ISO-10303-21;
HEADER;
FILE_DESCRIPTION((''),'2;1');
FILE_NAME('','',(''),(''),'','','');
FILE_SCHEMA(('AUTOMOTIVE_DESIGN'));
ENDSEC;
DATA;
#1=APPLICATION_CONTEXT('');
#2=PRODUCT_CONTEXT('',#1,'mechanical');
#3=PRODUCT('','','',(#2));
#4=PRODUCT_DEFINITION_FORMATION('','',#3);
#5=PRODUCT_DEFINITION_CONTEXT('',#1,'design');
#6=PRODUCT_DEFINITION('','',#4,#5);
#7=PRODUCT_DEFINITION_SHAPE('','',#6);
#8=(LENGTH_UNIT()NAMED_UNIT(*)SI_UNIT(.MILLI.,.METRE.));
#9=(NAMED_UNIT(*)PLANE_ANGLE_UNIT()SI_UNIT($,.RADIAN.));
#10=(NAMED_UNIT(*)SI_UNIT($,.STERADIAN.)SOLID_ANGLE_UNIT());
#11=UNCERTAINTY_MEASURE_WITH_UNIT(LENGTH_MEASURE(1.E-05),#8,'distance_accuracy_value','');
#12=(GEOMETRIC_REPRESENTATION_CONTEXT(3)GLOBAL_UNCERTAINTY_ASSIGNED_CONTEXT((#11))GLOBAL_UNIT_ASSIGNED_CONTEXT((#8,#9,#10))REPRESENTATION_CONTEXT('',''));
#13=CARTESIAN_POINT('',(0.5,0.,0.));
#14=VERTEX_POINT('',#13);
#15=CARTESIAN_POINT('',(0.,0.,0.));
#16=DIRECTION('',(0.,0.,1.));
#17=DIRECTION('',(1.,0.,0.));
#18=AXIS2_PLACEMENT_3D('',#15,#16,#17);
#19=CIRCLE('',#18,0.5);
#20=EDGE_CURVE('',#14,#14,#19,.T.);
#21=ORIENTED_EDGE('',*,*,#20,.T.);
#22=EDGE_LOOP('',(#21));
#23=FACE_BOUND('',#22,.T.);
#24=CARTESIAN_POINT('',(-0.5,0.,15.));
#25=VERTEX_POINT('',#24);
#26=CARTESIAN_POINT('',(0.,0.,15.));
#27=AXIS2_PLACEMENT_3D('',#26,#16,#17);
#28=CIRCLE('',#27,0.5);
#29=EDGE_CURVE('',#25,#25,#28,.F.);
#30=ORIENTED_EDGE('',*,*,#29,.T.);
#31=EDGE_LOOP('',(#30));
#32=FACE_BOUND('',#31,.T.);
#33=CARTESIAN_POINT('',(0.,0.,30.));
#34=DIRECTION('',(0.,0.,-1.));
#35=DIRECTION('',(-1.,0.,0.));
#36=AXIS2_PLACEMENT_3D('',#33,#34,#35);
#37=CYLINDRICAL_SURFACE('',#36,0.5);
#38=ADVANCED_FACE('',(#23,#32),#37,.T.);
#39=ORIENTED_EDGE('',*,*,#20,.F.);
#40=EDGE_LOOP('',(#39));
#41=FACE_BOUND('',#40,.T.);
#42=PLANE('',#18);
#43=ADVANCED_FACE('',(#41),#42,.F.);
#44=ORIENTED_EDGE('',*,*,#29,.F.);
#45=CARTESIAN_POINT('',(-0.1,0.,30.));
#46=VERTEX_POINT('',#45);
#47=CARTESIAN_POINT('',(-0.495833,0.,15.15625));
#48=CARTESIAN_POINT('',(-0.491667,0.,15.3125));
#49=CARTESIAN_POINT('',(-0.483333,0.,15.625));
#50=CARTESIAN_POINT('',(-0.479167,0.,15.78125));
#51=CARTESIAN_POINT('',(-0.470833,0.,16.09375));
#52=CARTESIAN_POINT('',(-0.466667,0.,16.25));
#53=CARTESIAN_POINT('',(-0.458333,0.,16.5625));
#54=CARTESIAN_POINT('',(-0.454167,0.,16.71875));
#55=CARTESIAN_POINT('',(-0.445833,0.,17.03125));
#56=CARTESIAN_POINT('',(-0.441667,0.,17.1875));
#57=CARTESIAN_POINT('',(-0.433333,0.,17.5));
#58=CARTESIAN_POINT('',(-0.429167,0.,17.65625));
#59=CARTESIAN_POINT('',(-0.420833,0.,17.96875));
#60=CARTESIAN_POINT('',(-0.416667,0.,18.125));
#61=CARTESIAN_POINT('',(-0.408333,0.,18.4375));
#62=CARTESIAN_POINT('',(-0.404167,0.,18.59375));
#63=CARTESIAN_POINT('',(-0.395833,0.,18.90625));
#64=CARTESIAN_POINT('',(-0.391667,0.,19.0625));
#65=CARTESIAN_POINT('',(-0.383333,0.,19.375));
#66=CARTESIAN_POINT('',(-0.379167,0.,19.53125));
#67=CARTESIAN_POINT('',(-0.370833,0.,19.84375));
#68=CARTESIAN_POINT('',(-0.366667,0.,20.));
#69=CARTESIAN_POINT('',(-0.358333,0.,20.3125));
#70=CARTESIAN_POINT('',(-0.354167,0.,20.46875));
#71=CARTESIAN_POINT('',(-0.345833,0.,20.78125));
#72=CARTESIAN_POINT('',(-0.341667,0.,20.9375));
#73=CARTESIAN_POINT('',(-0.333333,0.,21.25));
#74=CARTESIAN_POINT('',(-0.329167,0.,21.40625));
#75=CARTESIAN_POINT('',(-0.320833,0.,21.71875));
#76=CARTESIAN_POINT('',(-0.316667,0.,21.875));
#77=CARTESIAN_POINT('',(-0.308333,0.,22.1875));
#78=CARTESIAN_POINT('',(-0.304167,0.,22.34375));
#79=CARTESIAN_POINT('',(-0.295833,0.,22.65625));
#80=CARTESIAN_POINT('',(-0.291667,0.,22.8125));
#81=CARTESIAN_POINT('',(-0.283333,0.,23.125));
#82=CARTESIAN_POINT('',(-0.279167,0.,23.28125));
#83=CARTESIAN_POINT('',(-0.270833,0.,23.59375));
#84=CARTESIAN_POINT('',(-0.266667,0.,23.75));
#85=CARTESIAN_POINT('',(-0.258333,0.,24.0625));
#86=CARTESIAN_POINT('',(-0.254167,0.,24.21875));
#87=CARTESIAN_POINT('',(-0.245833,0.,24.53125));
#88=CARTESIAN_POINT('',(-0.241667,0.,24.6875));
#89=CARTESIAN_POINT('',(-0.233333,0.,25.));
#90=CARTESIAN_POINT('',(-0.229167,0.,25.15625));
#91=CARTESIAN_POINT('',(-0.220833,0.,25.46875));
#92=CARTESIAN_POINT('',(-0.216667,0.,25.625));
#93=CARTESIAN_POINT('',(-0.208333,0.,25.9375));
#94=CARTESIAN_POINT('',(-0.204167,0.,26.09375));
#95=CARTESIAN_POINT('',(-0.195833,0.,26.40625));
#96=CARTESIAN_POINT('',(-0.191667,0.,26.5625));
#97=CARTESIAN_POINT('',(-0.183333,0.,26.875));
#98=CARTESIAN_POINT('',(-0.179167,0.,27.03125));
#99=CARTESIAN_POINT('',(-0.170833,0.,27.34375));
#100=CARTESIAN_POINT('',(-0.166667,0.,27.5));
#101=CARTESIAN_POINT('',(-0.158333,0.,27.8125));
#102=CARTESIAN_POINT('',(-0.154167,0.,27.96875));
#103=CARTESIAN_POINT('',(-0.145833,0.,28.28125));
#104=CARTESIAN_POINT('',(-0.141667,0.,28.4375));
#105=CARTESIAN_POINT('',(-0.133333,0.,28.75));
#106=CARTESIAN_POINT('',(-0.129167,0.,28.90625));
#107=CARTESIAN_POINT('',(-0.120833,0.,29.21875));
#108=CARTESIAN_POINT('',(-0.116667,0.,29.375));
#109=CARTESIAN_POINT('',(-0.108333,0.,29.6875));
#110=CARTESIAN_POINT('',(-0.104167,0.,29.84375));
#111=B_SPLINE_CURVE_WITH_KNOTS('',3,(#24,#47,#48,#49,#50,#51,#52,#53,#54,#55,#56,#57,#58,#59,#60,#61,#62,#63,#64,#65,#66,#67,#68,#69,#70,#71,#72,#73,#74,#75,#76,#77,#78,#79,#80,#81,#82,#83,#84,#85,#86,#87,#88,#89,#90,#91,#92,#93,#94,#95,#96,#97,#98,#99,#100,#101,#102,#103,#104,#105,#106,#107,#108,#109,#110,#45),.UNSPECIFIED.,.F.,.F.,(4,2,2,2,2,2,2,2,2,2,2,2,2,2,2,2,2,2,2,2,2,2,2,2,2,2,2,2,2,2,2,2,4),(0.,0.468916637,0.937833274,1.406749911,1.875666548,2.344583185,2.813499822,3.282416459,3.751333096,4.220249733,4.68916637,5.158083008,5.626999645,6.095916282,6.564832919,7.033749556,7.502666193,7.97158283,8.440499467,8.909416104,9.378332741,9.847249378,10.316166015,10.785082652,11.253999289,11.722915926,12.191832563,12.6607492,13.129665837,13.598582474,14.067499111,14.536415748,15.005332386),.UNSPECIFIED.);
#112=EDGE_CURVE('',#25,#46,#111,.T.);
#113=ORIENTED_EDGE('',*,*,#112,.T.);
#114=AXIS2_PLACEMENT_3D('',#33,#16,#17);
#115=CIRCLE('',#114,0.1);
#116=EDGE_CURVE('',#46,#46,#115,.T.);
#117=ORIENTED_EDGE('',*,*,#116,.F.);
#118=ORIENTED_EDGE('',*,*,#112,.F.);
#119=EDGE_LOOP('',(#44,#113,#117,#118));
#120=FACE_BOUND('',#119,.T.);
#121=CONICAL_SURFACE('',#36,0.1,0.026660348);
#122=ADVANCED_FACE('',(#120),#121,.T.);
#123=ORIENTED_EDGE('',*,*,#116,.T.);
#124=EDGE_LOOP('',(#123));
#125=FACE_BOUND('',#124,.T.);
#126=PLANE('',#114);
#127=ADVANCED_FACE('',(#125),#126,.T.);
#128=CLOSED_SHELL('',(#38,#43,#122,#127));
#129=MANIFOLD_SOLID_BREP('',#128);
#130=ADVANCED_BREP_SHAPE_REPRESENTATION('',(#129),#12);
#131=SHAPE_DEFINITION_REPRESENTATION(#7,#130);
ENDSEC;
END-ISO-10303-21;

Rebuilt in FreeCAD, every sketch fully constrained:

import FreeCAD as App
import Part
import Sketcher
Q = App.Units.Quantity


def edges_at(feature, points):
    """Names of the edges that pass closest to the given points."""
    edges = feature.Shape.Edges
    near = lambda p: min(range(len(edges)), key=lambda i: edges[i].distToShape(Part.Vertex(*p))[0])
    return sorted({f"Edge{near(p) + 1}" for p in points})

doc = App.newDocument("Part")
params = doc.addObject("Spreadsheet::Sheet", "Params")
for row, (alias, value) in enumerate([
    ("sketch1_diameter", "1 mm"),
    ("pad1_length", "30 mm"),
    ("chamfer_size", "15 mm"),
    ("chamfer_size2", "0.4 mm"),
], start=1):
    params.set(f"A{row}", alias)
    params.set(f"B{row}", "=" + value)
    params.setAlias(f"B{row}", alias)

body = doc.addObject("PartDesign::Body", "Body")

sketch1 = body.newObject("Sketcher::SketchObject", "Sketch")
sketch1.AttachmentSupport = (doc.getObject("XY_Plane"), [""])
sketch1.MapMode = "FlatFace"
sketch1.addGeometry(Part.Circle(App.Vector(0, 0, 0), App.Vector(0, 0, 1), 0.5), False)
sketch1.addConstraint([
    Sketcher.Constraint("Coincident", 0, 3, -1, 1),
    Sketcher.Constraint("Diameter", 0, Q("1 mm")),
])
sketch1.setExpression("Constraints[1]", "Params.sketch1_diameter")
pad1 = body.newObject("PartDesign::Pad", "Pad")
pad1.Profile = sketch1
pad1.setExpression("Length", "Params.pad1_length")
doc.recompute()

chamfer = body.newObject("PartDesign::Chamfer", "Chamfer")
chamfer.Base = (pad1, edges_at(pad1, [(-0.5, 0, 30)]))
chamfer.ChamferType = "Two distances"
chamfer.setExpression("Size", "Params.chamfer_size")
chamfer.setExpression("Size2", "Params.chamfer_size2")

doc.recompute()
